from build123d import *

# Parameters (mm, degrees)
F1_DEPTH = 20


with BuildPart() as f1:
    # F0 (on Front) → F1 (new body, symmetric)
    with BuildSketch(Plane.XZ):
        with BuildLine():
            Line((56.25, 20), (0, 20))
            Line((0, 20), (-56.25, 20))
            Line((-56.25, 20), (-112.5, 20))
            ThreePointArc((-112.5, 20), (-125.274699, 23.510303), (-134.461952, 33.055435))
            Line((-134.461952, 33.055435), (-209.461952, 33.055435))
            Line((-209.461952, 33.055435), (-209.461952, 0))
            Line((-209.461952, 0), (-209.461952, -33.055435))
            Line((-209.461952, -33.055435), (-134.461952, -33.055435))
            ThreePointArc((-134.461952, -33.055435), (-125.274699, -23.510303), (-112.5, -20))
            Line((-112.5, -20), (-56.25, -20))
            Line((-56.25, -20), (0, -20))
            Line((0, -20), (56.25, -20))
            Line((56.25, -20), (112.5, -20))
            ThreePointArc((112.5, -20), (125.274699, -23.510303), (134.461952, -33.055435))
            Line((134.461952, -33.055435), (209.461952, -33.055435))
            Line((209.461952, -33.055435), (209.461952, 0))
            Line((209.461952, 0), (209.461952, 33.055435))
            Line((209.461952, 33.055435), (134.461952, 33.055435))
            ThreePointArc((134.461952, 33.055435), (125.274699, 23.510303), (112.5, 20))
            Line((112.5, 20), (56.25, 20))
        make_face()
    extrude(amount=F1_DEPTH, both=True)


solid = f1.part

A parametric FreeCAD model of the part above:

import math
import FreeCAD as App
import Part
import Sketcher

doc = App.newDocument("Part")
body = doc.addObject("PartDesign::Body", "Body")

sketch1 = body.newObject("Sketcher::SketchObject", "Sketch")
sketch1.AttachmentSupport = (doc.getObject("XZ_Plane"), [""])
sketch1.MapMode = "FlatFace"
sketch1.addGeometry([
    Part.ArcOfCircle(Part.Circle(App.Vector(-112.500001, 44.999996, 0), App.Vector(0, 0, 1), 24.999996), math.radians(-151.459325), math.radians(-89.999997)),
    Part.LineSegment(App.Vector(-134.461952, 33.055435, 0), App.Vector(-209.461952, 33.055435, 0)),
    Part.LineSegment(App.Vector(-209.461952, 33.055435, 0), App.Vector(-209.461952, -33.055435, 0)),
    Part.LineSegment(App.Vector(-209.461952, -33.055435, 0), App.Vector(-134.461952, -33.055435, 0)),
    Part.ArcOfCircle(Part.Circle(App.Vector(-112.500001, -44.999996, 0), App.Vector(0, 0, 1), 24.999996), math.radians(89.999997), math.radians(151.459325)),
    Part.LineSegment(App.Vector(-112.5, -20, 0), App.Vector(112.5, -20, 0)),
    Part.ArcOfCircle(Part.Circle(App.Vector(112.500001, -44.999996, 0), App.Vector(0, 0, 1), 24.999996), math.radians(28.540675), math.radians(90.000003)),
    Part.LineSegment(App.Vector(134.461952, -33.055435, 0), App.Vector(209.461952, -33.055435, 0)),
    Part.LineSegment(App.Vector(209.461952, -33.055435, 0), App.Vector(209.461952, 33.055435, 0)),
    Part.LineSegment(App.Vector(209.461952, 33.055435, 0), App.Vector(134.461952, 33.055435, 0)),
    Part.ArcOfCircle(Part.Circle(App.Vector(112.500001, 44.999996, 0), App.Vector(0, 0, 1), 24.999996), math.radians(-90.000003), math.radians(-28.540675)),
    Part.LineSegment(App.Vector(112.5, 20, 0), App.Vector(-112.5, 20, 0)),
], False)
sketch1.addConstraint([
    Sketcher.Constraint("Coincident", 0, 1, 1, 1),
    Sketcher.Constraint("Coincident", 1, 2, 2, 1),
    Sketcher.Constraint("Coincident", 2, 2, 3, 1),
    Sketcher.Constraint("Coincident", 3, 2, 4, 2),
    Sketcher.Constraint("Tangent", 4, 1, 5, 1),
    Sketcher.Constraint("Tangent", 5, 2, 6, 2),
    Sketcher.Constraint("Coincident", 6, 1, 7, 1),
    Sketcher.Constraint("Coincident", 7, 2, 8, 1),
    Sketcher.Constraint("Coincident", 8, 2, 9, 1),
    Sketcher.Constraint("Coincident", 9, 2, 10, 2),
    Sketcher.Constraint("Tangent", 10, 1, 11, 1),
    Sketcher.Constraint("Tangent", 11, 2, 0, 2),
    Sketcher.Constraint("Horizontal", 1),
    Sketcher.Constraint("Vertical", 2),
    Sketcher.Constraint("Horizontal", 3),
    Sketcher.Constraint("Horizontal", 5),
    Sketcher.Constraint("Horizontal", 7),
    Sketcher.Constraint("Vertical", 8),
    Sketcher.Constraint("Horizontal", 9),
    Sketcher.Constraint("Horizontal", 11),
    Sketcher.Constraint("Equal", 0, 4),
    Sketcher.Constraint("Equal", 4, 6),
    Sketcher.Constraint("Equal", 6, 10),
    Sketcher.Constraint("Symmetric", 0, 3, 6, 3, -1, 1),
    Sketcher.Constraint("Symmetric", 1, 2, 7, 2, -1, 1),
    Sketcher.Constraint("Symmetric", 3, 2, 9, 2, -1, 1),
    Sketcher.Constraint("Symmetric", 3, 2, 6, 1, -2),
    Sketcher.Constraint("DistanceX", 1, 2, 1, 1, 75.0),
    Sketcher.Constraint("DistanceX", 5, 1, 5, 2, 225.0),
    Sketcher.Constraint("DistanceY", 4, 1, -1, 1, 20.0),
    Sketcher.Constraint("Radius", 0, 24.999996),
    Sketcher.Constraint("DistanceY", 2, 2, 2, 1, 66.11087),
])
pad1 = body.newObject("PartDesign::Pad", "Pad")
pad1.Profile = sketch1
pad1.Length = 40
pad1.Midplane = True

doc.recompute()
